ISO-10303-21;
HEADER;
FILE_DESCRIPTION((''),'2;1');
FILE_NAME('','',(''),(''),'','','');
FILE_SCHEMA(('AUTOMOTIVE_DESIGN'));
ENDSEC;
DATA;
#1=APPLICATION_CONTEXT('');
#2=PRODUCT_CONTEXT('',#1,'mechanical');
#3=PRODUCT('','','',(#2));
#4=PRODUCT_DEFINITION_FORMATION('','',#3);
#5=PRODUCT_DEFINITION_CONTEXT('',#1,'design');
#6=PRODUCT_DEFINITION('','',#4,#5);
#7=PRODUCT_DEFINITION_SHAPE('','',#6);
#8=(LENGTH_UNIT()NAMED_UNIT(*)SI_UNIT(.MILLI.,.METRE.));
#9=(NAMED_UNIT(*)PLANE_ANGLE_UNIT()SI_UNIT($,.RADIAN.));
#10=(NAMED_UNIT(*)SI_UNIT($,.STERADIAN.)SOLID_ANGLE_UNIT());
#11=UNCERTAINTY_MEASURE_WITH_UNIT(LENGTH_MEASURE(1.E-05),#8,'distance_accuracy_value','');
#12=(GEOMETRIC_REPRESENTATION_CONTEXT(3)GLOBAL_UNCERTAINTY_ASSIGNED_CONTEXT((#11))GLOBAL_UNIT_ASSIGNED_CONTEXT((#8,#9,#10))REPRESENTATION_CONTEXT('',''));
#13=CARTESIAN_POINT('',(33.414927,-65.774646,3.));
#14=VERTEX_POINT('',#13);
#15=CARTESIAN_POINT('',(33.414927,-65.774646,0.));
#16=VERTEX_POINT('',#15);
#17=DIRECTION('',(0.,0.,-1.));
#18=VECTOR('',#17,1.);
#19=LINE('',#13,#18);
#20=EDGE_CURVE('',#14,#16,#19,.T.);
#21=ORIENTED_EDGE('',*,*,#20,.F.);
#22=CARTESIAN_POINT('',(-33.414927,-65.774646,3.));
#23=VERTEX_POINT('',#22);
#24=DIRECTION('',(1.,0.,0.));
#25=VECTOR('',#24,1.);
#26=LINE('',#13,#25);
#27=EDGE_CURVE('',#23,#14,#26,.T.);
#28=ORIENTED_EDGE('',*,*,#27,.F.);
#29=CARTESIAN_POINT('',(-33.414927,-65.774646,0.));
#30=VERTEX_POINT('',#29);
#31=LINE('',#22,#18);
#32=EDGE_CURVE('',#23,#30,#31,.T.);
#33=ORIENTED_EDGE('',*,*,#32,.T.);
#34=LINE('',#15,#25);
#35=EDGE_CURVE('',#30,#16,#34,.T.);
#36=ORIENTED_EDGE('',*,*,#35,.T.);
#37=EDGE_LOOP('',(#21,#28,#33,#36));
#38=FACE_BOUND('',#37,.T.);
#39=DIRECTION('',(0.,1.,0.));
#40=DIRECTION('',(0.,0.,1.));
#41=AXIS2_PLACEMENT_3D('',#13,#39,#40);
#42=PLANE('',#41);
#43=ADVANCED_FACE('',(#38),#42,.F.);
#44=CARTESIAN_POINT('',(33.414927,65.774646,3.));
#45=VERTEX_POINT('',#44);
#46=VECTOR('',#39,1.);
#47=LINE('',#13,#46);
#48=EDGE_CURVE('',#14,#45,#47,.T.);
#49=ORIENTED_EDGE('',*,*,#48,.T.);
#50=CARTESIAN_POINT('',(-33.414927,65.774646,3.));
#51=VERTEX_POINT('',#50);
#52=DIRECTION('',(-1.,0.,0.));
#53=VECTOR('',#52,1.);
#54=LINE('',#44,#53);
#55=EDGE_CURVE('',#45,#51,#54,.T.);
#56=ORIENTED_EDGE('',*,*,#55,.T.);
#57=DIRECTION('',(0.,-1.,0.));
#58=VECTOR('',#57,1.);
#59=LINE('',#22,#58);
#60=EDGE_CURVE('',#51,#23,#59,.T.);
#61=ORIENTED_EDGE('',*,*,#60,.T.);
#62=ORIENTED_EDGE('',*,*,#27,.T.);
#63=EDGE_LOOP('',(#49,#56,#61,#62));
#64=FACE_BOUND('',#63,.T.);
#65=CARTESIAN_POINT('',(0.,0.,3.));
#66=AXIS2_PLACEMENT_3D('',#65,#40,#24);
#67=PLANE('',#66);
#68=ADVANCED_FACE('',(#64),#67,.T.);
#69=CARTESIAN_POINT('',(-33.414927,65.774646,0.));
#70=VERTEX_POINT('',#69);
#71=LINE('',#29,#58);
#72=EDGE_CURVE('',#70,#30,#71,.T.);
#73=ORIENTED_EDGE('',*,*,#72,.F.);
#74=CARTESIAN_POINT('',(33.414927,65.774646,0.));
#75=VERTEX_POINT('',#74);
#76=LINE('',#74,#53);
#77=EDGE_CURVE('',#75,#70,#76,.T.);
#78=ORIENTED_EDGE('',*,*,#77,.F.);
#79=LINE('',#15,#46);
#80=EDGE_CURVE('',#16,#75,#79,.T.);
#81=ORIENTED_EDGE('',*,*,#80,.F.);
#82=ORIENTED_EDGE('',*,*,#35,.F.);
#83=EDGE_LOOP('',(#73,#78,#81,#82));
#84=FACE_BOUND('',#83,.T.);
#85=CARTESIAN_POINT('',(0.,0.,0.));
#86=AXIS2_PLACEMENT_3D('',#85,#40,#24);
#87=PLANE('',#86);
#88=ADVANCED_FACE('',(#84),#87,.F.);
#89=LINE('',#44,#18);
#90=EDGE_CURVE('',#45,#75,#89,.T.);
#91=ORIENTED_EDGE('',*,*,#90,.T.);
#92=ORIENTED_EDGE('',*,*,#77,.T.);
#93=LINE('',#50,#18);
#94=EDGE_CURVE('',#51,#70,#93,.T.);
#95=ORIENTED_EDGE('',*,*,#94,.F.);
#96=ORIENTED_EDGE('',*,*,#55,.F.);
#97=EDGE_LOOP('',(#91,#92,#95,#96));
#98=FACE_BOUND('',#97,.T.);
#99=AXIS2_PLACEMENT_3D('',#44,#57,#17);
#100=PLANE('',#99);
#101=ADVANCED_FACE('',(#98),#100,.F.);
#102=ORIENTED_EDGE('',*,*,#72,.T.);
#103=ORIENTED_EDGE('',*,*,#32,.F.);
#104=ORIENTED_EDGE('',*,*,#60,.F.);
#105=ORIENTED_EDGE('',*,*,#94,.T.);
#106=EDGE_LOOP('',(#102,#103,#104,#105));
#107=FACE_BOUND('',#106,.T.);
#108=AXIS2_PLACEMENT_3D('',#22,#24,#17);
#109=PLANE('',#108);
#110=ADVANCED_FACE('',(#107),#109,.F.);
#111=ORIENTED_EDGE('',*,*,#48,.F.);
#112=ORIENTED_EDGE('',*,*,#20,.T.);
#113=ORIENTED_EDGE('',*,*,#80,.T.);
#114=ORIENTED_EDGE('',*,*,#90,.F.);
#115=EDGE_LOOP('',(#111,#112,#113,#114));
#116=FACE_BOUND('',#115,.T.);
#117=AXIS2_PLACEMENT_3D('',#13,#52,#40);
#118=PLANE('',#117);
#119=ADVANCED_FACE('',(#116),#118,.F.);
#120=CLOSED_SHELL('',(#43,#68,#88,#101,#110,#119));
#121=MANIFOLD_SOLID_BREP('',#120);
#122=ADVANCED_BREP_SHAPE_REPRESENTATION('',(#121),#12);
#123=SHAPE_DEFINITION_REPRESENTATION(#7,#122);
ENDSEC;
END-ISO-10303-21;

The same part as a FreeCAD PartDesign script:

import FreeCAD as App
import Part
import Sketcher

V = App.Vector
Q = App.Units.Quantity

doc = App.newDocument("Part")
body = doc.addObject("PartDesign::Body", "Body")

sketch1 = body.newObject("Sketcher::SketchObject", "Sketch")
sketch1.AttachmentSupport = (doc.getObject("XY_Plane"), [""])
sketch1.MapMode = "FlatFace"
sketch1.addGeometry([
    Part.LineSegment(V(-33.414927, 65.774646, 0), V(-33.414927, -65.774646, 0)),
    Part.LineSegment(V(-33.414927, -65.774646, 0), V(33.414927, -65.774646, 0)),
    Part.LineSegment(V(33.414927, -65.774646, 0), V(33.414927, 65.774646, 0)),
    Part.LineSegment(V(33.414927, 65.774646, 0), V(-33.414927, 65.774646, 0)),
], False)
sketch1.addConstraint([
    Sketcher.Constraint("Coincident", 0, 2, 1, 1),
    Sketcher.Constraint("Coincident", 1, 2, 2, 1),
    Sketcher.Constraint("Coincident", 2, 2, 3, 1),
    Sketcher.Constraint("Coincident", 3, 2, 0, 1),
    Sketcher.Constraint("Vertical", 0),
    Sketcher.Constraint("Horizontal", 1),
    Sketcher.Constraint("Vertical", 2),
    Sketcher.Constraint("Horizontal", 3),
    Sketcher.Constraint("Symmetric", 0, 2, 2, 2, -1, 1),
    Sketcher.Constraint("DistanceX", 1, 1, 1, 2, Q("66.829854 mm")),
    Sketcher.Constraint("DistanceY", 0, 2, 0, 1, Q("131.549292 mm")),
])
pad1 = body.newObject("PartDesign::Pad", "Pad")
pad1.Profile = sketch1
pad1.Length = 3

doc.recompute()
